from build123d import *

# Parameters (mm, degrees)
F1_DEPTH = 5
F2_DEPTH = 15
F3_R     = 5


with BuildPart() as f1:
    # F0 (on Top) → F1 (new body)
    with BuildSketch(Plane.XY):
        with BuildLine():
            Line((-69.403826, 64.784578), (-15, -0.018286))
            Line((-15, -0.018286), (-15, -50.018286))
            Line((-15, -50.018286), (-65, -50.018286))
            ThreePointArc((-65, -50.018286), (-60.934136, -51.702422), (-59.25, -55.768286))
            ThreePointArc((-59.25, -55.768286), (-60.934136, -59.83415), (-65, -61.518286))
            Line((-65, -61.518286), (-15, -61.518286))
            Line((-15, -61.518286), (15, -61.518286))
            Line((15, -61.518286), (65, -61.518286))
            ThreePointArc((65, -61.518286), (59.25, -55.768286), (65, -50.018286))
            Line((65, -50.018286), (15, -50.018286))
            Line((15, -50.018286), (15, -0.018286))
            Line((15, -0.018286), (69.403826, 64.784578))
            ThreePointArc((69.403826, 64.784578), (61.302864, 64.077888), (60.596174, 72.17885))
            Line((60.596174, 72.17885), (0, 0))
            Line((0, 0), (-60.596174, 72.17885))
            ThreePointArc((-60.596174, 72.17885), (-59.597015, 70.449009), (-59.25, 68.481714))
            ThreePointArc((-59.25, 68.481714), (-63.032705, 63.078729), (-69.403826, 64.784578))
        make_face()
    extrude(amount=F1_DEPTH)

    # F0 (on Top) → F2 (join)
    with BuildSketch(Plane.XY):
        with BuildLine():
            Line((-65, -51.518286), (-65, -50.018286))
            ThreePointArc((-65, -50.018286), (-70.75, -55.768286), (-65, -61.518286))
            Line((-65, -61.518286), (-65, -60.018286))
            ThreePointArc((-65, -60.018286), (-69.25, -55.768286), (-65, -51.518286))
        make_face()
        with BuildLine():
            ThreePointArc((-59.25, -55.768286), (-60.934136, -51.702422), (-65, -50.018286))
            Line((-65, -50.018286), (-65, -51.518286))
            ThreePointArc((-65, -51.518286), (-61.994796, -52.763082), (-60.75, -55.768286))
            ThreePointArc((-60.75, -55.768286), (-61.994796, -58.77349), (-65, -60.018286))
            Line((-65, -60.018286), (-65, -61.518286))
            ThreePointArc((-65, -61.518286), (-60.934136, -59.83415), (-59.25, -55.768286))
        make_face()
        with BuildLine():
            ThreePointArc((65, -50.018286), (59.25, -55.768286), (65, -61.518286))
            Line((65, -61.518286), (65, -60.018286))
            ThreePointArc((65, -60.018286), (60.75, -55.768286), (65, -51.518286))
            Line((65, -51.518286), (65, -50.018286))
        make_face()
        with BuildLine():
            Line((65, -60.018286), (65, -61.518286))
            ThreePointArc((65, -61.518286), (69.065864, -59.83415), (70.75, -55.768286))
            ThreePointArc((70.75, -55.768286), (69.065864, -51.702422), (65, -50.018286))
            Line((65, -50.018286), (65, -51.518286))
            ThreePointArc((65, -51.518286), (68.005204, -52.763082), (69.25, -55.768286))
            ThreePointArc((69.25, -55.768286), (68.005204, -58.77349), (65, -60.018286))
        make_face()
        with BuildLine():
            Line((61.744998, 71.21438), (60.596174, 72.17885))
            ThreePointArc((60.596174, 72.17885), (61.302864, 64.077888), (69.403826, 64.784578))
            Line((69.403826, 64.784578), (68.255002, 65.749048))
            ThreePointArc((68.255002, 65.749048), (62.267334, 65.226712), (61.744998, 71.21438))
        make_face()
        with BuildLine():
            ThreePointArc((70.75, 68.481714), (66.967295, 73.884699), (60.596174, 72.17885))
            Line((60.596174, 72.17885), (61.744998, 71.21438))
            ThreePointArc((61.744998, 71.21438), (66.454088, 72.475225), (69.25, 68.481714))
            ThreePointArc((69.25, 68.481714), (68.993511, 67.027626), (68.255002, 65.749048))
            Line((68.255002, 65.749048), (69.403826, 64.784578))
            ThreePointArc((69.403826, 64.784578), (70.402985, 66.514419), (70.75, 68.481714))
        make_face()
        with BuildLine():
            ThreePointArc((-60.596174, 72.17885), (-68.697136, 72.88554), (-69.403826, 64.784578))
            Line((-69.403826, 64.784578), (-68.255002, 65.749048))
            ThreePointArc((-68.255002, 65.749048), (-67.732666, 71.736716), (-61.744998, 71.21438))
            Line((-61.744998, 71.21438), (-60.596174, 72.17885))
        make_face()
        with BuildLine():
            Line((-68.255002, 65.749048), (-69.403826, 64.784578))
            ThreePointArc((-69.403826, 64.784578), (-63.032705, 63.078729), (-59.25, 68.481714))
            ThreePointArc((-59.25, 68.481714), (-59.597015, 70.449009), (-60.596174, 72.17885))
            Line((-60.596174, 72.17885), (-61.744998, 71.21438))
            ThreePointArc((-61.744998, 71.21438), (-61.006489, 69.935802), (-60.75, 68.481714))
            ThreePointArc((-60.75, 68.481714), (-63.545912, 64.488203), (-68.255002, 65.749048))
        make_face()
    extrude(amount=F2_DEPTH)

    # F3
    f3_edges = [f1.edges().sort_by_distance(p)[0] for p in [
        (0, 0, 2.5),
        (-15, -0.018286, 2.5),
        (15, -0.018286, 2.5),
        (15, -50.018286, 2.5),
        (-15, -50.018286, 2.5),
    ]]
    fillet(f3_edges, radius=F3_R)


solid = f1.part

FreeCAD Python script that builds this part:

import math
import FreeCAD as App
import Part
import Sketcher

V = App.Vector


def edges_at(feature, points):
    """Names of the edges that pass closest to the given points."""
    edges = feature.Shape.Edges
    near = lambda p: min(range(len(edges)), key=lambda i: edges[i].distToShape(Part.Vertex(*p))[0])
    return sorted({f"Edge{near(p) + 1}" for p in points})

doc = App.newDocument("Part")
body = doc.addObject("PartDesign::Body", "Body")

# Sketch on XY plane
sketch1 = body.newObject("Sketcher::SketchObject", "Sketch")
sketch1.AttachmentSupport = (doc.getObject("XY_Plane"), [""])
sketch1.MapMode = "FlatFace"
sketch1.addGeometry([
    Part.LineSegment(V(-69.4, 64.8, 0), V(-15, 0, 0)),  # 0
    Part.LineSegment(V(-15, 0, 0), V(-15, -50, 0)),  # 1
    Part.LineSegment(V(-15, -50, 0), V(-65, -50, 0)),  # 2
    Part.ArcOfCircle(Part.Circle(V(-65, -55.8, 0), V(0, 0, 1), 5.7), math.radians(0), math.radians(90)),  # 3
    Part.ArcOfCircle(Part.Circle(V(-65, -55.8, 0), V(0, 0, 1), 5.7), math.radians(-90), math.radians(0)),  # 4
    Part.LineSegment(V(-65, -61.5, 0), V(65, -61.5, 0)),  # 5
    Part.ArcOfCircle(Part.Circle(V(65, -55.8, 0), V(0, 0, 1), 5.8), math.radians(90), math.radians(270)),  # 6
    Part.LineSegment(V(65, -50, 0), V(15, -50, 0)),  # 7
    Part.LineSegment(V(15, -50, 0), V(15, 0, 0)),  # 8
    Part.LineSegment(V(15, 0, 0), V(69.4, 64.8, 0)),  # 9
    Part.ArcOfCircle(Part.Circle(V(65, 68.5, 0), V(0, 0, 1), 5.7), math.radians(140), math.radians(320)),  # 10
    Part.LineSegment(V(60.6, 72.2, 0), V(0, 0, 0)),  # 11
    Part.LineSegment(V(0, 0, 0), V(-60.6, 72.2, 0)),  # 12
    Part.ArcOfCircle(Part.Circle(V(-65, 68.5, 0), V(0, 0, 1), 5.8), math.radians(0), math.radians(40)),  # 13
    Part.ArcOfCircle(Part.Circle(V(-65, 68.5, 0), V(0, 0, 1), 5.8), math.radians(-140), math.radians(0)),  # 14
], False)
sketch1.addConstraint([
    Sketcher.Constraint("Coincident", 0, 2, 1, 1),
    Sketcher.Constraint("Coincident", 1, 2, 2, 1),
    Sketcher.Constraint("Tangent", 2, 2, 3, 2),
    Sketcher.Constraint("Tangent", 3, 1, 4, 2),
    Sketcher.Constraint("Tangent", 4, 1, 5, 1),
    Sketcher.Constraint("Tangent", 5, 2, 6, 2),
    Sketcher.Constraint("Tangent", 6, 1, 7, 1),
    Sketcher.Constraint("Coincident", 7, 2, 8, 1),
    Sketcher.Constraint("Coincident", 8, 2, 9, 1),
    Sketcher.Constraint("Tangent", 9, 2, 10, 2),
    Sketcher.Constraint("Tangent", 10, 1, 11, 1),
    Sketcher.Constraint("Coincident", 11, 2, 12, 1),
    Sketcher.Constraint("Tangent", 12, 2, 13, 2),
    Sketcher.Constraint("Tangent", 13, 1, 14, 2),
    Sketcher.Constraint("Tangent", 14, 1, 0, 1),
    Sketcher.Constraint("Vertical", 1),
    Sketcher.Constraint("Horizontal", 2),
    Sketcher.Constraint("Horizontal", 5),
    Sketcher.Constraint("Horizontal", 7),
    Sketcher.Constraint("Vertical", 8),
    Sketcher.Constraint("Coincident", 11, 2, -1, 1),
    Sketcher.Constraint("Equal", 3, 4),
    Sketcher.Constraint("Equal", 4, 6),
    Sketcher.Constraint("Equal", 6, 10),
    Sketcher.Constraint("Equal", 10, 14),
    Sketcher.Constraint("Symmetric", 10, 3, 13, 3, -2),
    Sketcher.Constraint("Symmetric", 0, 2, 8, 2, -2),
    Sketcher.Constraint("Parallel", 9, 11),
    Sketcher.Constraint("Parallel", 0, 12),
    Sketcher.Constraint("Horizontal", 6, 3, 3, 1),
    Sketcher.Constraint("Horizontal", 14, 3, 13, 1),
    Sketcher.Constraint("Vertical", 6, 3, 10, 3),
    Sketcher.Constraint("Vertical", 4, 3, 14, 3),
    Sketcher.Constraint("Equal", 7, 1),
    Sketcher.Constraint("DistanceX", 2, 2, 2, 1, 50.0),
    Sketcher.Constraint("DistanceX", 5, 1, 5, 2, 130.0),
    Sketcher.Constraint("Radius", 3, 5.75),
    Sketcher.Constraint("DistanceY", 5, 2, 10, 3, 130.0),
])
pad1 = body.newObject("PartDesign::Pad", "Pad")
pad1.Profile = sketch1
pad1.Length = 5

# Sketch on XY plane
sketch2 = body.newObject("Sketcher::SketchObject", "Sketch001")
sketch2.AttachmentSupport = (doc.getObject("XY_Plane"), [""])
sketch2.MapMode = "FlatFace"
sketch2.addGeometry([
    Part.ArcOfCircle(Part.Circle(V(-65, -55.8, 0), V(0, 0, 1), 5.8), math.radians(90), math.radians(270)),  # 0
    Part.ArcOfCircle(Part.Circle(V(-65, -55.8, 0), V(0, 0, 1), 5.7), math.radians(-90), math.radians(0)),  # 1
    Part.ArcOfCircle(Part.Circle(V(-65, -55.8, 0), V(0, 0, 1), 5.7), math.radians(0), math.radians(90)),  # 2
    Part.ArcOfCircle(Part.Circle(V(-65, -55.8, 0), V(0, 0, 1), 4.2), math.radians(90), math.radians(270)),  # 3
    Part.ArcOfCircle(Part.Circle(V(-65, -55.8, 0), V(0, 0, 1), 4.2), math.radians(0), math.radians(90)),  # 4
    Part.ArcOfCircle(Part.Circle(V(-65, -55.8, 0), V(0, 0, 1), 4.2), math.radians(-90), math.radians(0)),  # 5
    Part.ArcOfCircle(Part.Circle(V(65, -55.8, 0), V(0, 0, 1), 5.8), math.radians(90), math.radians(270)),  # 6
    Part.ArcOfCircle(Part.Circle(V(65, -55.8, 0), V(0, 0, 1), 5.7), math.radians(-90), math.radians(0)),  # 7
    Part.ArcOfCircle(Part.Circle(V(65, -55.8, 0), V(0, 0, 1), 5.7), math.radians(0), math.radians(90)),  # 8
    Part.ArcOfCircle(Part.Circle(V(65, -55.8, 0), V(0, 0, 1), 4.2), math.radians(90), math.radians(270)),  # 9
    Part.ArcOfCircle(Part.Circle(V(65, -55.8, 0), V(0, 0, 1), 4.2), math.radians(0), math.radians(90)),  # 10
    Part.ArcOfCircle(Part.Circle(V(65, -55.8, 0), V(0, 0, 1), 4.2), math.radians(-90), math.radians(0)),  # 11
    Part.ArcOfCircle(Part.Circle(V(65, 68.5, 0), V(0, 0, 1), 5.7), math.radians(140), math.radians(320)),  # 12
    Part.ArcOfCircle(Part.Circle(V(65, 68.5, 0), V(0, 0, 1), 5.8), math.radians(-40), math.radians(0)),  # 13
    Part.ArcOfCircle(Part.Circle(V(65, 68.5, 0), V(0, 0, 1), 5.8), math.radians(0), math.radians(140)),  # 14
    Part.ArcOfCircle(Part.Circle(V(65, 68.5, 0), V(0, 0, 1), 4.3), math.radians(140), math.radians(320)),  # 15
    Part.ArcOfCircle(Part.Circle(V(65, 68.5, 0), V(0, 0, 1), 4.3), math.radians(0), math.radians(140)),  # 16
    Part.ArcOfCircle(Part.Circle(V(65, 68.5, 0), V(0, 0, 1), 4.2), math.radians(-40), math.radians(0)),  # 17
    Part.ArcOfCircle(Part.Circle(V(-65, 68.5, 0), V(0, 0, 1), 5.7), math.radians(40), math.radians(220)),  # 18
    Part.ArcOfCircle(Part.Circle(V(-65, 68.5, 0), V(0, 0, 1), 5.8), math.radians(-140), math.radians(0)),  # 19
    Part.ArcOfCircle(Part.Circle(V(-65, 68.5, 0), V(0, 0, 1), 5.8), math.radians(0), math.radians(40)),  # 20
    Part.ArcOfCircle(Part.Circle(V(-65, 68.5, 0), V(0, 0, 1), 4.3), math.radians(40), math.radians(220)),  # 21
    Part.ArcOfCircle(Part.Circle(V(-65, 68.5, 0), V(0, 0, 1), 4.2), math.radians(0), math.radians(40)),  # 22
    Part.ArcOfCircle(Part.Circle(V(-65, 68.5, 0), V(0, 0, 1), 4.3), math.radians(-140), math.radians(0)),  # 23
], False)
sketch2.addConstraint([
    Sketcher.Constraint("Tangent", 0, 2, 1, 1),
    Sketcher.Constraint("Tangent", 1, 2, 2, 1),
    Sketcher.Constraint("Tangent", 2, 2, 0, 1),
    Sketcher.Constraint("Tangent", 3, 1, 4, 2),
    Sketcher.Constraint("Tangent", 4, 1, 5, 2),
    Sketcher.Constraint("Tangent", 5, 1, 3, 2),
    Sketcher.Constraint("Tangent", 6, 2, 7, 1),
    Sketcher.Constraint("Tangent", 7, 2, 8, 1),
    Sketcher.Constraint("Tangent", 8, 2, 6, 1),
    Sketcher.Constraint("Tangent", 9, 1, 10, 2),
    Sketcher.Constraint("Tangent", 10, 1, 11, 2),
    Sketcher.Constraint("Tangent", 11, 1, 9, 2),
    Sketcher.Constraint("Tangent", 12, 2, 13, 1),
    Sketcher.Constraint("Tangent", 13, 2, 14, 1),
    Sketcher.Constraint("Tangent", 14, 2, 12, 1),
    Sketcher.Constraint("Tangent", 15, 1, 16, 2),
    Sketcher.Constraint("Tangent", 16, 1, 17, 2),
    Sketcher.Constraint("Tangent", 17, 1, 15, 2),
    Sketcher.Constraint("Tangent", 18, 2, 19, 1),
    Sketcher.Constraint("Tangent", 19, 2, 20, 1),
    Sketcher.Constraint("Tangent", 20, 2, 18, 1),
    Sketcher.Constraint("Tangent", 21, 1, 22, 2),
    Sketcher.Constraint("Tangent", 22, 1, 23, 2),
    Sketcher.Constraint("Tangent", 23, 1, 21, 2),
    Sketcher.Constraint("Coincident", 3, 3, 0, 3),
    Sketcher.Constraint("Coincident", 9, 3, 6, 3),
    Sketcher.Constraint("Coincident", 15, 3, 12, 3),
    Sketcher.Constraint("Coincident", 21, 3, 18, 3),
    Sketcher.Constraint("Equal", 2, 6),
    Sketcher.Constraint("Equal", 5, 9),
    Sketcher.Constraint("Equal", 8, 12),
    Sketcher.Constraint("Equal", 11, 15),
    Sketcher.Constraint("Equal", 14, 18),
    Sketcher.Constraint("Equal", 16, 21),
    Sketcher.Constraint("Symmetric", 0, 3, 6, 3, -2),
    Sketcher.Constraint("Symmetric", 12, 3, 18, 3, -2),
    Sketcher.Constraint("Horizontal", 11, 3, 1, 2),
    Sketcher.Constraint("Horizontal", 1, 2, 4, 1),
    Sketcher.Constraint("Horizontal", 4, 1, 7, 2),
    Sketcher.Constraint("Horizontal", 7, 2, 10, 1),
    Sketcher.Constraint("Horizontal", 23, 3, 13, 2),
    Sketcher.Constraint("Horizontal", 13, 2, 16, 1),
    Sketcher.Constraint("Horizontal", 12, 2, 18, 2),
    Sketcher.Constraint("Horizontal", 16, 1, 19, 2),
    Sketcher.Constraint("Horizontal", 14, 2, 20, 2),
    Sketcher.Constraint("Horizontal", 15, 1, 21, 1),
    Sketcher.Constraint("Horizontal", 19, 2, 22, 1),
    Sketcher.Constraint("Horizontal", 17, 1, 23, 1),
    Sketcher.Constraint("Vertical", 11, 3, 12, 3),
    Sketcher.Constraint("Vertical", 23, 3, 0, 2),
    Sketcher.Constraint("Vertical", 0, 2, 2, 2),
    Sketcher.Constraint("Vertical", 2, 2, 3, 1),
    Sketcher.Constraint("Vertical", 3, 1, 5, 1),
    Sketcher.Constraint("Vertical", 16, 3, 6, 2),
    Sketcher.Constraint("Vertical", 6, 2, 8, 2),
    Sketcher.Constraint("Vertical", 8, 2, 9, 1),
    Sketcher.Constraint("Vertical", 9, 1, 11, 1),
    Sketcher.Constraint("Radius", 0, 5.75),
    Sketcher.Constraint("Radius", 3, 4.25),
    Sketcher.Constraint("DistanceX", 0, 3, -1, 1, 65.0),
    Sketcher.Constraint("DistanceY", 10, 3, 12, 3, 124.249999),
    Sketcher.Constraint("DistanceX", -1, 1, 15, 1, 61.744998),
    Sketcher.Constraint("DistanceX", 23, 1, -1, 1, 68.255002),
    Sketcher.Constraint("DistanceY", -1, 1, 14, 2, 72.17885),
    Sketcher.Constraint("DistanceY", -1, 1, 15, 1, 71.21438),
    Sketcher.Constraint("DistanceY", 12, 2, 17, 1, 0.96447),
])
pad2 = body.newObject("PartDesign::Pad", "Pad001")
pad2.Profile = sketch2
pad2.Length = 15
doc.recompute()

fillet = body.newObject("PartDesign::Fillet", "Fillet")
fillet.Base = (pad2, edges_at(pad2, [
    (0, 0, 2.5),
    (-15, -0.018, 2.5),
    (15, -0.018, 2.5),
    (15, -50.018, 2.5),
    (-15, -50.018, 2.5),
]))
fillet.Radius = 5

doc.recompute()
